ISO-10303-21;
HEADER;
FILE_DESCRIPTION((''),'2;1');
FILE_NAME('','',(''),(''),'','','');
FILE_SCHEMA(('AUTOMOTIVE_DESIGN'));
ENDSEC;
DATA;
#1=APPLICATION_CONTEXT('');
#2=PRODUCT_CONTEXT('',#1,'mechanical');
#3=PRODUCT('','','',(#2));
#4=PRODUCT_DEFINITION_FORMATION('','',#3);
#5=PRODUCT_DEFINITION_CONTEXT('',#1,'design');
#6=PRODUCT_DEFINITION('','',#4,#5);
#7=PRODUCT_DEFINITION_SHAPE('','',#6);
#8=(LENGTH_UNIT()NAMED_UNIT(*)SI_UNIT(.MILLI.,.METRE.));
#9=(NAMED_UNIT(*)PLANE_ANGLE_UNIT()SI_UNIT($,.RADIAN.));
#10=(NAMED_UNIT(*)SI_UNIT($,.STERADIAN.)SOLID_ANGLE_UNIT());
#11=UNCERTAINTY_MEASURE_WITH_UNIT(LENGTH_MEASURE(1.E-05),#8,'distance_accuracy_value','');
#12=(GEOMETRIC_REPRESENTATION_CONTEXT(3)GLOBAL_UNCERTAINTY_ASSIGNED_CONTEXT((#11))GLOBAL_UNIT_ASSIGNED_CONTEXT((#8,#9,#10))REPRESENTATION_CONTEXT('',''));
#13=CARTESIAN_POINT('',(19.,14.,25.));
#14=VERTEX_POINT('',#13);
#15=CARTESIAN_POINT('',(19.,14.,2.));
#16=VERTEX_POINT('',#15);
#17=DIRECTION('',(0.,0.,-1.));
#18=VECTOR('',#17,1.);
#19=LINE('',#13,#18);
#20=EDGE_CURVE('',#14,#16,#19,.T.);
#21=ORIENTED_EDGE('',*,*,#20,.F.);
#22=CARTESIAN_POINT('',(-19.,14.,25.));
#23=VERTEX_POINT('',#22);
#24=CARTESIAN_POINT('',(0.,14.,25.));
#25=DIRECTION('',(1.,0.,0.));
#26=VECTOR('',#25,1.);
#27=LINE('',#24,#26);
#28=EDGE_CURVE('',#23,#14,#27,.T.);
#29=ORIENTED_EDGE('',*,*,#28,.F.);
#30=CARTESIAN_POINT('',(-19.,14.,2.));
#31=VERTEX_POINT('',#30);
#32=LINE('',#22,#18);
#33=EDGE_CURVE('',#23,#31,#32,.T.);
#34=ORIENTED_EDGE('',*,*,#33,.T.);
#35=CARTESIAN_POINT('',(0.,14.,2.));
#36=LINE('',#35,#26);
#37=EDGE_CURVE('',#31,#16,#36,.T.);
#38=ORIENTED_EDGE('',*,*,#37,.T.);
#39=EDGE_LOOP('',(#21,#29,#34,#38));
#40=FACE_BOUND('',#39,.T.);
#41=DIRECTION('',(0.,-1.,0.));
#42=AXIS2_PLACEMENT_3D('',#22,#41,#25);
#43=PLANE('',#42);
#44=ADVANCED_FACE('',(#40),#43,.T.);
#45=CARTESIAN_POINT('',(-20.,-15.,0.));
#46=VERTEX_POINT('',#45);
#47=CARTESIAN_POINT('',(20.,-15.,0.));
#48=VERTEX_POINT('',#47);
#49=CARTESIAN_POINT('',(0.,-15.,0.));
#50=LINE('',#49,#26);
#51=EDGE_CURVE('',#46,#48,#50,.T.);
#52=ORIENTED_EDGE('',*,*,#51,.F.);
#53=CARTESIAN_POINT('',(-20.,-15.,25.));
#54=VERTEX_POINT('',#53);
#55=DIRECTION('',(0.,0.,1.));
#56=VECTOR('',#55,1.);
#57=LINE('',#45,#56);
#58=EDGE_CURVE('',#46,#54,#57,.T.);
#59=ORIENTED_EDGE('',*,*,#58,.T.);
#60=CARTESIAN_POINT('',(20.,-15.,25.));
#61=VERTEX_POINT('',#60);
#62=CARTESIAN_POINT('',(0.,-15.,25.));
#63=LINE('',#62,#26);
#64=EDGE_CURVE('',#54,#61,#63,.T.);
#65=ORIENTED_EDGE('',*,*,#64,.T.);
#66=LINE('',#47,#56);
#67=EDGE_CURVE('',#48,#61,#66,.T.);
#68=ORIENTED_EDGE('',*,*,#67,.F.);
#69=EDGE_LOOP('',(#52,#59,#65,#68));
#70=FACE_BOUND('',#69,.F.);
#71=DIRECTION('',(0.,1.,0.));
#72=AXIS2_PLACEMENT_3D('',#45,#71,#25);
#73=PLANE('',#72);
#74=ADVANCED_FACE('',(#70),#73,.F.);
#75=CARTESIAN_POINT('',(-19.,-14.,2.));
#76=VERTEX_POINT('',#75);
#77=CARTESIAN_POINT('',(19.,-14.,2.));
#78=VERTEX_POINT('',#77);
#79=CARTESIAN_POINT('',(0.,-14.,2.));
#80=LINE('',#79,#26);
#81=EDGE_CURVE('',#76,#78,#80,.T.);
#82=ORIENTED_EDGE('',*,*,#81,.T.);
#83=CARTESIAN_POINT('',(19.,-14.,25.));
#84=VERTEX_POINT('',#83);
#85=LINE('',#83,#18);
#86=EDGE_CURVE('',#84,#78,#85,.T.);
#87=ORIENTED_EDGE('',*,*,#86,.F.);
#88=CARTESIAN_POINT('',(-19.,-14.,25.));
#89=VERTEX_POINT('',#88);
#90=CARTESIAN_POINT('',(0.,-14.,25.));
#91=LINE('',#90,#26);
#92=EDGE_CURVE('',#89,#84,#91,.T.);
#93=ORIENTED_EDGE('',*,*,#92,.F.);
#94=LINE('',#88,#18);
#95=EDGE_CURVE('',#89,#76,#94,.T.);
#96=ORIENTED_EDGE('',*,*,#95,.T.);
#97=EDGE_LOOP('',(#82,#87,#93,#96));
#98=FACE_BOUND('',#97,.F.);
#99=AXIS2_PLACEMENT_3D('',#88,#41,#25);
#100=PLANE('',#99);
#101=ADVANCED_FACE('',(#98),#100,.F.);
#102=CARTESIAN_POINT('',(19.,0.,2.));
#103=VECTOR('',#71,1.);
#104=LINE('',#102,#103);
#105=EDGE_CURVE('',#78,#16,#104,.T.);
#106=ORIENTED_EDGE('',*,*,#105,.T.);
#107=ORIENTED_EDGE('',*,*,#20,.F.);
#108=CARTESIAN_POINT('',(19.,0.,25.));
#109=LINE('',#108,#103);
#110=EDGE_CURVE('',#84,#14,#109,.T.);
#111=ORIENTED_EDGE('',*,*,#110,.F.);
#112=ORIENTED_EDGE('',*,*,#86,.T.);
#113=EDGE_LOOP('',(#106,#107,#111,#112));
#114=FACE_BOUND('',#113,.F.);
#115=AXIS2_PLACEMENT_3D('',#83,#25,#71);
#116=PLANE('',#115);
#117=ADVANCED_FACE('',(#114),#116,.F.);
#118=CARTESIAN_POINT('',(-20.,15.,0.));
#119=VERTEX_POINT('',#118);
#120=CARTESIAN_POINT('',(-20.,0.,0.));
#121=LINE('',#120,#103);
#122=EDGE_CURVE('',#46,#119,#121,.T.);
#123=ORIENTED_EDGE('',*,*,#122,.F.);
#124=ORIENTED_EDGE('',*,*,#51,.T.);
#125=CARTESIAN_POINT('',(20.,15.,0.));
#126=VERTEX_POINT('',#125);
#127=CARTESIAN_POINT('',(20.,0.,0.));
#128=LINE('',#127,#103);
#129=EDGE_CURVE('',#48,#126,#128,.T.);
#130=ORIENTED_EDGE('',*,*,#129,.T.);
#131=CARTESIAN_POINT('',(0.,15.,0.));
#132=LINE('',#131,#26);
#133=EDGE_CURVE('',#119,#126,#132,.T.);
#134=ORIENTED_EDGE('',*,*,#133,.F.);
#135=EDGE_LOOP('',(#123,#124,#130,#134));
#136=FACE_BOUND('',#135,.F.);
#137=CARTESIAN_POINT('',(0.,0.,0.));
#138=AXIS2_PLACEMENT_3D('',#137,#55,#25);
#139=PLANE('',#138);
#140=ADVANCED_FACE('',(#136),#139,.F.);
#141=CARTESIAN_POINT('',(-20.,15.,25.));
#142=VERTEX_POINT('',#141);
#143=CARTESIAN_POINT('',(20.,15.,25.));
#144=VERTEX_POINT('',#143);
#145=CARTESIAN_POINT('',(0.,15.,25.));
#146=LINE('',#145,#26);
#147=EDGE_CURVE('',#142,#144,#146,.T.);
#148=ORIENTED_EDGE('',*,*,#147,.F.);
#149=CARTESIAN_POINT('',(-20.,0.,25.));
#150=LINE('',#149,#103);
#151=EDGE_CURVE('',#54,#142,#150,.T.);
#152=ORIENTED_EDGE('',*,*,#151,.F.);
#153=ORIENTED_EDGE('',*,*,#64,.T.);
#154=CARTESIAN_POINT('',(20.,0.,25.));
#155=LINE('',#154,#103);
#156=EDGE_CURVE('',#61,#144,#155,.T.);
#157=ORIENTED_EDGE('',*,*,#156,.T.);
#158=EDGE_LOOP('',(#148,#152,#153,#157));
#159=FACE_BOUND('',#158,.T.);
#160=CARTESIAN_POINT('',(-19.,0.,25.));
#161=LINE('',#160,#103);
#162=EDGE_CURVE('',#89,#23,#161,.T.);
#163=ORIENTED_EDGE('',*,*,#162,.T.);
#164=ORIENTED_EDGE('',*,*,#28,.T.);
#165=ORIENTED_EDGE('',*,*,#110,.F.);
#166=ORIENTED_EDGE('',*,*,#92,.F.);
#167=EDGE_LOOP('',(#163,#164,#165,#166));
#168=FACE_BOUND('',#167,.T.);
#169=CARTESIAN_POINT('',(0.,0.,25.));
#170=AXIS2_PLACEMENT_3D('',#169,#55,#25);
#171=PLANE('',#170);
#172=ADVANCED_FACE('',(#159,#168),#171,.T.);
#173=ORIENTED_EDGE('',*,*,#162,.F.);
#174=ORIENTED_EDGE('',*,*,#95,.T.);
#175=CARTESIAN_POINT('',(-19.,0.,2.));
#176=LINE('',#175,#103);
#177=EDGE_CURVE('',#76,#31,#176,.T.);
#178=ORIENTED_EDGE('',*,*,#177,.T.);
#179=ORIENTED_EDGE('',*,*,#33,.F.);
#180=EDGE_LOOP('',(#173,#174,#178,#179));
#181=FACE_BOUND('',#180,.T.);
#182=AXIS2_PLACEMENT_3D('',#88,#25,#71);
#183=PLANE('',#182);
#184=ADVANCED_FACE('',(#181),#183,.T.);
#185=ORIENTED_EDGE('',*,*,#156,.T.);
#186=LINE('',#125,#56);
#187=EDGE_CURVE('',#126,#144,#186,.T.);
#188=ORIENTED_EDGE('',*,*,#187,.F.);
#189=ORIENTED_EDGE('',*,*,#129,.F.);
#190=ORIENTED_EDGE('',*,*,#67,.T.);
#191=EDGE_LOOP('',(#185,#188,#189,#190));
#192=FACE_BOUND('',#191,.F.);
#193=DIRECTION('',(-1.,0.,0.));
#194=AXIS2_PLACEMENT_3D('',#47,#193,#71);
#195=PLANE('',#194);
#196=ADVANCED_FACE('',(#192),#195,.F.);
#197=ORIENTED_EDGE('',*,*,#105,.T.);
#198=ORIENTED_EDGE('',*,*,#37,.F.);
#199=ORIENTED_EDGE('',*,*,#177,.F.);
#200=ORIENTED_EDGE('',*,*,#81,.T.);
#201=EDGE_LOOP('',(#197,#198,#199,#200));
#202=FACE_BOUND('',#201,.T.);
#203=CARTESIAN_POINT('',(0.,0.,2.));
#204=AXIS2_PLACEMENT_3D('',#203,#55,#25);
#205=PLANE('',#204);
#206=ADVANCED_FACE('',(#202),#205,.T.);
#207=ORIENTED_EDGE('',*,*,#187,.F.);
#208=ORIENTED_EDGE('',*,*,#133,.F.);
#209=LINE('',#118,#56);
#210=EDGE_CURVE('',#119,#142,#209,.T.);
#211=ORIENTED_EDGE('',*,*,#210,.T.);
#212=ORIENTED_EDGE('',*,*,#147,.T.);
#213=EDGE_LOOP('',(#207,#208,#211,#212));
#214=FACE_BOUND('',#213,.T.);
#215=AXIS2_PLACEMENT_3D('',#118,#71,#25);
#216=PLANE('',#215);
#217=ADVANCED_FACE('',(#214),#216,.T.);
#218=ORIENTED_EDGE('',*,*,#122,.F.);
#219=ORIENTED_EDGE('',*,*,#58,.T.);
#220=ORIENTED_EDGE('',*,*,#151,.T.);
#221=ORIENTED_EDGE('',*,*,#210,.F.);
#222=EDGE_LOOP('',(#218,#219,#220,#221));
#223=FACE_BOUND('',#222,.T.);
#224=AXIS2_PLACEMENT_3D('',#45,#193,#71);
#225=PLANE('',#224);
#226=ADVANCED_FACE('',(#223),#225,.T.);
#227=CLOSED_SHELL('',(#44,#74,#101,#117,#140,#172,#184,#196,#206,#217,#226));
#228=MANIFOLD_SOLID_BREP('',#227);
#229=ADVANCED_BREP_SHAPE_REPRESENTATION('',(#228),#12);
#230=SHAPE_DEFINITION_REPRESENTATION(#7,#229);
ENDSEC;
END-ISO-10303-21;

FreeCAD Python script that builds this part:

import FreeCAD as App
import Part
import Sketcher

doc = App.newDocument("Part")
params = doc.addObject("Spreadsheet::Sheet", "Params")
for row, (alias, value) in enumerate([
    ("sketch1_width", "40 mm"),
    ("sketch1_height", "30 mm"),
    ("pad1_length", "25 mm"),
    ("sketch2_width", "38 mm"),
    ("sketch2_height", "28 mm"),
    ("pocket1_length", "23 mm"),
], start=1):
    params.set(f"A{row}", alias)
    params.set(f"B{row}", "=" + value)
    params.setAlias(f"B{row}", alias)

body = doc.addObject("PartDesign::Body", "Body")

# Sketch on XY plane
sketch1 = body.newObject("Sketcher::SketchObject", "Sketch")
sketch1.AttachmentSupport = (doc.getObject("XY_Plane"), [""])
sketch1.MapMode = "FlatFace"
sketch1.addGeometry([
    Part.LineSegment(App.Vector(-20, 15, 0), App.Vector(-20, -15, 0)),
    Part.LineSegment(App.Vector(-20, -15, 0), App.Vector(20, -15, 0)),
    Part.LineSegment(App.Vector(20, -15, 0), App.Vector(20, 15, 0)),
    Part.LineSegment(App.Vector(20, 15, 0), App.Vector(-20, 15, 0)),
], False)
sketch1.addConstraint([
    Sketcher.Constraint("Coincident", 0, 2, 1, 1),
    Sketcher.Constraint("Coincident", 1, 2, 2, 1),
    Sketcher.Constraint("Coincident", 2, 2, 3, 1),
    Sketcher.Constraint("Coincident", 3, 2, 0, 1),
    Sketcher.Constraint("Vertical", 0),
    Sketcher.Constraint("Horizontal", 1),
    Sketcher.Constraint("Vertical", 2),
    Sketcher.Constraint("Horizontal", 3),
    Sketcher.Constraint("Symmetric", 0, 2, 2, 2, -1, 1),
    Sketcher.Constraint("DistanceX", 1, 1, 1, 2, 40.0),
    Sketcher.Constraint("DistanceY", 0, 2, 0, 1, 30.0),
])
sketch1.setExpression("Constraints[9]", "Params.sketch1_width")
sketch1.setExpression("Constraints[10]", "Params.sketch1_height")
pad1 = body.newObject("PartDesign::Pad", "Pad")
pad1.Profile = sketch1
pad1.setExpression("Length", "Params.pad1_length")

# Sketch on XY plane
sketch2 = body.newObject("Sketcher::SketchObject", "Sketch001")
sketch2.AttachmentSupport = (doc.getObject("XY_Plane"), [""])
sketch2.MapMode = "FlatFace"
sketch2.AttachmentOffset = App.Placement(App.Vector(0, 0, 25), App.Rotation())
sketch2.addGeometry([
    Part.LineSegment(App.Vector(-19, 14, 0), App.Vector(-19, -14, 0)),
    Part.LineSegment(App.Vector(-19, -14, 0), App.Vector(19, -14, 0)),
    Part.LineSegment(App.Vector(19, -14, 0), App.Vector(19, 14, 0)),
    Part.LineSegment(App.Vector(19, 14, 0), App.Vector(-19, 14, 0)),
], False)
sketch2.addConstraint([
    Sketcher.Constraint("Coincident", 0, 2, 1, 1),
    Sketcher.Constraint("Coincident", 1, 2, 2, 1),
    Sketcher.Constraint("Coincident", 2, 2, 3, 1),
    Sketcher.Constraint("Coincident", 3, 2, 0, 1),
    Sketcher.Constraint("Vertical", 0),
    Sketcher.Constraint("Horizontal", 1),
    Sketcher.Constraint("Vertical", 2),
    Sketcher.Constraint("Horizontal", 3),
    Sketcher.Constraint("Symmetric", 0, 2, 2, 2, -1, 1),
    Sketcher.Constraint("DistanceX", 1, 1, 1, 2, 38.0),
    Sketcher.Constraint("DistanceY", 0, 2, 0, 1, 28.0),
])
sketch2.setExpression("Constraints[9]", "Params.sketch2_width")
sketch2.setExpression("Constraints[10]", "Params.sketch2_height")
pocket1 = body.newObject("PartDesign::Pocket", "Pocket")
pocket1.Profile = sketch2
pocket1.setExpression("Length", "Params.pocket1_length")

doc.recompute()
